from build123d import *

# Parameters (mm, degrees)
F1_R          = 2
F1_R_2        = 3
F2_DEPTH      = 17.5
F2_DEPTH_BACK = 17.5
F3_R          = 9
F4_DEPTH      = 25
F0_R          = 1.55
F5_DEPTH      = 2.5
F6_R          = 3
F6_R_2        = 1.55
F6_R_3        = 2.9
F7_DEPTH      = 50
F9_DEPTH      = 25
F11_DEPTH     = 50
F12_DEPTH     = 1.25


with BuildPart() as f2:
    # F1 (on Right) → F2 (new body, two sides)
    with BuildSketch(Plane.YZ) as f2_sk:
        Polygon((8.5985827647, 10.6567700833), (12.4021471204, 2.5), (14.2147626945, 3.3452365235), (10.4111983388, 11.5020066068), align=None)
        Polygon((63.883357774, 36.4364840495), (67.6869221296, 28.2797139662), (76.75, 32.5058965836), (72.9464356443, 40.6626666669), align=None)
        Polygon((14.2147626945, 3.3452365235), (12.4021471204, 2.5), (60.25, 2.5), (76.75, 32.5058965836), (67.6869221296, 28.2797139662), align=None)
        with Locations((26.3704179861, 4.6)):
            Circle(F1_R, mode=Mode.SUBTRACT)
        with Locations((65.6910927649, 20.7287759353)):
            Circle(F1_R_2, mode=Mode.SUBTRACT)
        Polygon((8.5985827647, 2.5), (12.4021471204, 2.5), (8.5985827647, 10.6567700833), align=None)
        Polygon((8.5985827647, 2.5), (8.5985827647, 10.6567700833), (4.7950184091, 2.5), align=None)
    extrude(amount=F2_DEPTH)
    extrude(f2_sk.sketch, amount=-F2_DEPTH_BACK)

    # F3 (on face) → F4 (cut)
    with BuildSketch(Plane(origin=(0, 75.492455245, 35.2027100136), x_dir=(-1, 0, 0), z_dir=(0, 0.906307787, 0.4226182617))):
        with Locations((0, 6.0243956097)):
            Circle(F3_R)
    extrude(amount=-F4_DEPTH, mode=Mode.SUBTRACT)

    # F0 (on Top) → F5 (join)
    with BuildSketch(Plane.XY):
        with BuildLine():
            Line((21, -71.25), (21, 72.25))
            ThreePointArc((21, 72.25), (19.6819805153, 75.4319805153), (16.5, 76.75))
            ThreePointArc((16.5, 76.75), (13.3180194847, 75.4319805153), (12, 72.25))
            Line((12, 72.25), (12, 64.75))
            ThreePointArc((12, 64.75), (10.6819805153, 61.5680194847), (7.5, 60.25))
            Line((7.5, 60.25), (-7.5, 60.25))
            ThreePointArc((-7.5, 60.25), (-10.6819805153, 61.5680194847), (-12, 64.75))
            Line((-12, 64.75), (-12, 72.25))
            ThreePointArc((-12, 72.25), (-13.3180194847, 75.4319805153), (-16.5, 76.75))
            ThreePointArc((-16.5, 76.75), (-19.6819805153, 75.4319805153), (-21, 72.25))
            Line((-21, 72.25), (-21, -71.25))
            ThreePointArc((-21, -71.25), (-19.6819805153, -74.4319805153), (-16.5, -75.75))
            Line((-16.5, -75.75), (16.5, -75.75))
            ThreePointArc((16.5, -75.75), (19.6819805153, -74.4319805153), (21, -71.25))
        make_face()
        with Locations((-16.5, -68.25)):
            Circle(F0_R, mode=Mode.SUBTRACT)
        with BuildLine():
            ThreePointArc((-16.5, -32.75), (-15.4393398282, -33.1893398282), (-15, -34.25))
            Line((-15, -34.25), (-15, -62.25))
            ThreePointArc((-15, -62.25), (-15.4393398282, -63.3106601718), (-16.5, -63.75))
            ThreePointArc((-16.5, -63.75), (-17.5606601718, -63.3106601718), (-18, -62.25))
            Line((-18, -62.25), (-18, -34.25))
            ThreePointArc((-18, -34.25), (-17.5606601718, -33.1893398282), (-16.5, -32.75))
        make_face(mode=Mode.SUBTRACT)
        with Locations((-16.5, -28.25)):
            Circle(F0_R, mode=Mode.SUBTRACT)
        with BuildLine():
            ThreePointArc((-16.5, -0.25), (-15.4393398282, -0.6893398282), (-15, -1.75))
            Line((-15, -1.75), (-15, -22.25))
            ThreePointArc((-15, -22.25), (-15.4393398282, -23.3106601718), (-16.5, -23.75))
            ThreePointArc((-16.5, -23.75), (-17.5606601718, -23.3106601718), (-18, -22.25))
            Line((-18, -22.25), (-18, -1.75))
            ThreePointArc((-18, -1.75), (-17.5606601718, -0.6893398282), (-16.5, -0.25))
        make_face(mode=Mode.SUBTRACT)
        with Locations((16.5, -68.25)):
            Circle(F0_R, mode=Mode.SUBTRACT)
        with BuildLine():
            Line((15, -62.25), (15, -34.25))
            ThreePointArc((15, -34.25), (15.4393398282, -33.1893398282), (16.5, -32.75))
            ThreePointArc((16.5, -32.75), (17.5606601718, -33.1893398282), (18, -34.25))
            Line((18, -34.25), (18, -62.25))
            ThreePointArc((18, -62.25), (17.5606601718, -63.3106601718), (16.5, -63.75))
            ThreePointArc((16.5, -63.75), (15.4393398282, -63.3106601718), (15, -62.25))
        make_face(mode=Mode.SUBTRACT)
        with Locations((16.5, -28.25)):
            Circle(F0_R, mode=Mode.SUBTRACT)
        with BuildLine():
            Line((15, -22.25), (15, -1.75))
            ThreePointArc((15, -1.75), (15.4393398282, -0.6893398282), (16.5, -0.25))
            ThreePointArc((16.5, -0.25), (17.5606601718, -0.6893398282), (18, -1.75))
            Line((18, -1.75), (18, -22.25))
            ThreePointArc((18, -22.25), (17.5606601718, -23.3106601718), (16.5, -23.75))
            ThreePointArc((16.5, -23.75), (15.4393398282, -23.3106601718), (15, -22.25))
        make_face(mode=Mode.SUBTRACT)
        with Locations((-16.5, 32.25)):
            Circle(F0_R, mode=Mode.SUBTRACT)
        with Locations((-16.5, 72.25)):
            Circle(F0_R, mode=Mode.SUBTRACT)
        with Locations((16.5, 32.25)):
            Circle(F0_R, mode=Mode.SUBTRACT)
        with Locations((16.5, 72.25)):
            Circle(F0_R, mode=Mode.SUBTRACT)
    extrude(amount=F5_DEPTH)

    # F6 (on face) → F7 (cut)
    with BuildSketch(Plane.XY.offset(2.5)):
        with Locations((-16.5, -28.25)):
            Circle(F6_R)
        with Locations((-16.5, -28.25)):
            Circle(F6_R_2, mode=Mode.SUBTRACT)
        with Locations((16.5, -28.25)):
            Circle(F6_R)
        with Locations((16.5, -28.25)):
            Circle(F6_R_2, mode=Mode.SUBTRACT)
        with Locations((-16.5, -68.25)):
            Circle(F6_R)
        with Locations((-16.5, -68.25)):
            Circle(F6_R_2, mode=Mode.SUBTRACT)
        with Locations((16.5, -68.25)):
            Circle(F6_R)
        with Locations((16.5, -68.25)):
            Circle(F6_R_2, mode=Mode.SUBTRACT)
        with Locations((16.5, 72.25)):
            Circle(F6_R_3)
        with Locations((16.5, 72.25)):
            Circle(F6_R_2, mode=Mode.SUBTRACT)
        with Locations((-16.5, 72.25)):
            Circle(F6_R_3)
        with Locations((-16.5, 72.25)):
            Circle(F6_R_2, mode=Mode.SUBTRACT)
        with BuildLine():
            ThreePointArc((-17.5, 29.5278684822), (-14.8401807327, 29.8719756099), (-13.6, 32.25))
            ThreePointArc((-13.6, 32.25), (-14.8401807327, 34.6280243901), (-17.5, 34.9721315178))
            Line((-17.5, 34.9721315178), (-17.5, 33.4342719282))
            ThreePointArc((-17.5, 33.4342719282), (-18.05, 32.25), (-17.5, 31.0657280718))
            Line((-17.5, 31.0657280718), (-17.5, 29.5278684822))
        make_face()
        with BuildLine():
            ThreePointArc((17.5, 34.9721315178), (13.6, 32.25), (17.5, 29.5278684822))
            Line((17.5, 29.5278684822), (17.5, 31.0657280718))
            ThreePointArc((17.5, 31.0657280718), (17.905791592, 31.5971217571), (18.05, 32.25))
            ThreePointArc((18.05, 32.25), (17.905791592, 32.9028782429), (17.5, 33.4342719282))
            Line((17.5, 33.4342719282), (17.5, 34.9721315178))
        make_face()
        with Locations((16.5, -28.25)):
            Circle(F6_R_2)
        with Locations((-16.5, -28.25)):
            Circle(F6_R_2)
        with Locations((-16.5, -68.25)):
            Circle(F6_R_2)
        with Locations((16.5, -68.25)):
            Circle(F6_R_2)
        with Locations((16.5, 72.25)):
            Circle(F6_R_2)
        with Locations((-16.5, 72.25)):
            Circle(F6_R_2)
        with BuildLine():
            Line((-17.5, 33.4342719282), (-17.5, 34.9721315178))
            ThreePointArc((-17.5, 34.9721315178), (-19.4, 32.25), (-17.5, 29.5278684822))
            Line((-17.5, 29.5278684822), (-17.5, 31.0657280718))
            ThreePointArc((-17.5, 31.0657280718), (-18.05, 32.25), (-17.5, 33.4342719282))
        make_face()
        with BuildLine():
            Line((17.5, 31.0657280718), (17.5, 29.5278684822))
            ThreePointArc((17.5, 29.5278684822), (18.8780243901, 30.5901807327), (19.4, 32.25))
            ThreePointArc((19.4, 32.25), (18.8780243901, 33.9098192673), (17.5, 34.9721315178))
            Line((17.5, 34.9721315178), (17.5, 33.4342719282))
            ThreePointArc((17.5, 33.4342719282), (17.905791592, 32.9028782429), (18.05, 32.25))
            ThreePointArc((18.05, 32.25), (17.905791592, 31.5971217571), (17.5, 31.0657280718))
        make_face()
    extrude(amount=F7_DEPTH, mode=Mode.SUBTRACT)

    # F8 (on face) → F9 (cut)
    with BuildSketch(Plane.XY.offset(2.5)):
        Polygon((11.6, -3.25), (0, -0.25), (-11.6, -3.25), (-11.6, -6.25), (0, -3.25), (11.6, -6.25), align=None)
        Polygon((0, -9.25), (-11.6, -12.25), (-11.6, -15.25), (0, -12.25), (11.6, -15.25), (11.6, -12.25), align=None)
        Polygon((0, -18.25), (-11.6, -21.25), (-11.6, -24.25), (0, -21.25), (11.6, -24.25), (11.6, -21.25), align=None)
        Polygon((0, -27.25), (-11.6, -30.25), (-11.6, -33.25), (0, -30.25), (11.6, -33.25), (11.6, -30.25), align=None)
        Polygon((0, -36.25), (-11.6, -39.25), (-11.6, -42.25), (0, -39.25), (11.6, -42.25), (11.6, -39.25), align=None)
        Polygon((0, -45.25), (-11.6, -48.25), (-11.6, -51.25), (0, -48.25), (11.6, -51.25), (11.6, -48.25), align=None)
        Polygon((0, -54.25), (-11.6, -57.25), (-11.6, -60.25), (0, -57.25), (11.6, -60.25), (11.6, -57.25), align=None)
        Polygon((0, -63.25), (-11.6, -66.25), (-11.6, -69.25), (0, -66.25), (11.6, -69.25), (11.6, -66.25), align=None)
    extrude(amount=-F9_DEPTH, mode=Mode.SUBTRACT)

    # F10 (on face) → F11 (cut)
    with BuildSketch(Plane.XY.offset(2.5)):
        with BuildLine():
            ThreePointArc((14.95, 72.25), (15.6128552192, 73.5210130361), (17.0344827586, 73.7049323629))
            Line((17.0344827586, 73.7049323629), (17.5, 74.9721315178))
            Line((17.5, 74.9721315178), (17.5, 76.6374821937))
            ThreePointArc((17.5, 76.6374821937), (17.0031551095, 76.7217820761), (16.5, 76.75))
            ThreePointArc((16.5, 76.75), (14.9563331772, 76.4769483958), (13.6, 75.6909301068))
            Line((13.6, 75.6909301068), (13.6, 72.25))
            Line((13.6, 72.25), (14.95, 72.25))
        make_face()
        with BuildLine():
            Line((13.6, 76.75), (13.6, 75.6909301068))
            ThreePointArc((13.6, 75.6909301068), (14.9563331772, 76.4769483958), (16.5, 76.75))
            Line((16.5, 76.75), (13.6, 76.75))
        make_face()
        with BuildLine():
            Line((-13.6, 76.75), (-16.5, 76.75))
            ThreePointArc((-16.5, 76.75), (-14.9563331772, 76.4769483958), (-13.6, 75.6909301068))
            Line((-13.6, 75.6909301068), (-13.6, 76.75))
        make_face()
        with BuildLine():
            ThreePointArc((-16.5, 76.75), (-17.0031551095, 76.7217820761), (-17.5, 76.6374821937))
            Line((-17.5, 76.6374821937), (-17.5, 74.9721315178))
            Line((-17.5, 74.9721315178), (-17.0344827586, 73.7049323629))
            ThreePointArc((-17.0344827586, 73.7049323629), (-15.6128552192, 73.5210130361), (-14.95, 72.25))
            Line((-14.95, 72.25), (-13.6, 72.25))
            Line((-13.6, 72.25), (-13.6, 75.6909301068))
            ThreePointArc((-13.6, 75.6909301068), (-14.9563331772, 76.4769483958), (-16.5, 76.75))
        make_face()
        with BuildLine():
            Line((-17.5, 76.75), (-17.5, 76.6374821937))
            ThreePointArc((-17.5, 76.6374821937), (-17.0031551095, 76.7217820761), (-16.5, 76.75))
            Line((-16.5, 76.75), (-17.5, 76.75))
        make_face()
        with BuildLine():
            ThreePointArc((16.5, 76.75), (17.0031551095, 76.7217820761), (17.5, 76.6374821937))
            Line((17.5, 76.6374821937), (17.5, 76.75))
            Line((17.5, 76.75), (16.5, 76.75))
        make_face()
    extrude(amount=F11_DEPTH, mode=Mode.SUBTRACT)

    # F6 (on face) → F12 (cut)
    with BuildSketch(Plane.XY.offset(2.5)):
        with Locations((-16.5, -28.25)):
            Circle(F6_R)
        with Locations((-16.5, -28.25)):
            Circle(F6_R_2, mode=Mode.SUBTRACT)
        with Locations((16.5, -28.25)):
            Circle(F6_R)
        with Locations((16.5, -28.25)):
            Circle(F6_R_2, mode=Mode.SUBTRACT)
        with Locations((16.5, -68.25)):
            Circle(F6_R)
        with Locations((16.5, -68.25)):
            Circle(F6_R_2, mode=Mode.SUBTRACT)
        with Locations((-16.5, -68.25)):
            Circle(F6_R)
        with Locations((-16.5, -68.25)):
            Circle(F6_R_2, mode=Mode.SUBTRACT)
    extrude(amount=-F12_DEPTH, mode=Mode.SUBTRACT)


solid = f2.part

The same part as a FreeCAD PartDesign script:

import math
import FreeCAD as App
import Part
import Sketcher
from FreeCAD import Vector
Q = App.Units.Quantity

doc = App.newDocument("Part")
body = doc.addObject("PartDesign::Body", "Body")

sketch1 = body.newObject("Sketcher::SketchObject", "Sketch")
sketch1.AttachmentSupport = (doc.getObject("YZ_Plane"), [""])
sketch1.MapMode = "FlatFace"
sketch1.addGeometry(Part.LineSegment(Vector(10.411198, 11.502007, 0), Vector(8.598583, 10.65677, 0)), False)
sketch1.addGeometry(Part.LineSegment(Vector(8.598583, 10.65677, 0), Vector(4.795018, 2.5, 0)), False)
sketch1.addGeometry(Part.LineSegment(Vector(4.795018, 2.5, 0), Vector(60.25, 2.5, 0)), False)
sketch1.addGeometry(Part.LineSegment(Vector(60.25, 2.5, 0), Vector(76.75, 32.505897, 0)), False)
sketch1.addGeometry(Part.LineSegment(Vector(76.75, 32.505897, 0), Vector(72.946436, 40.662667, 0)), False)
sketch1.addGeometry(Part.LineSegment(Vector(72.946436, 40.662667, 0), Vector(63.883358, 36.436484, 0)), False)
sketch1.addGeometry(Part.LineSegment(Vector(63.883358, 36.436484, 0), Vector(67.686922, 28.279714, 0)), False)
sketch1.addGeometry(Part.LineSegment(Vector(67.686922, 28.279714, 0), Vector(14.214763, 3.345237, 0)), False)
sketch1.addGeometry(Part.LineSegment(Vector(14.214763, 3.345237, 0), Vector(10.411198, 11.502007, 0)), False)
sketch1.addGeometry(Part.Circle(Vector(26.370418, 4.6, 0), Vector(0, 0, 1), 2), False)
sketch1.addGeometry(Part.Circle(Vector(65.691093, 20.728776, 0), Vector(0, 0, 1), 3), False)
sketch1.addConstraint(Sketcher.Constraint("Coincident", 0, 2, 1, 1))
sketch1.addConstraint(Sketcher.Constraint("Coincident", 1, 2, 2, 1))
sketch1.addConstraint(Sketcher.Constraint("Coincident", 2, 2, 3, 1))
sketch1.addConstraint(Sketcher.Constraint("Coincident", 3, 2, 4, 1))
sketch1.addConstraint(Sketcher.Constraint("Coincident", 4, 2, 5, 1))
sketch1.addConstraint(Sketcher.Constraint("Coincident", 5, 2, 6, 1))
sketch1.addConstraint(Sketcher.Constraint("Coincident", 6, 2, 7, 1))
sketch1.addConstraint(Sketcher.Constraint("Coincident", 7, 2, 8, 1))
sketch1.addConstraint(Sketcher.Constraint("Coincident", 8, 2, 0, 1))
sketch1.addConstraint(Sketcher.Constraint("Horizontal", 2))
sketch1.addConstraint(Sketcher.Constraint("Perpendicular", 0, 4))
sketch1.addConstraint(Sketcher.Constraint("Perpendicular", 4, 5))
sketch1.addConstraint(Sketcher.Constraint("Perpendicular", 5, 6))
sketch1.addConstraint(Sketcher.Constraint("Perpendicular", 6, 7))
sketch1.addConstraint(Sketcher.Constraint("Perpendicular", 7, 8))
sketch1.addConstraint(Sketcher.Constraint("Equal", 1, 4))
sketch1.addConstraint(Sketcher.Constraint("Equal", 4, 6))
sketch1.addConstraint(Sketcher.Constraint("Equal", 6, 8))
sketch1.addConstraint(Sketcher.Constraint("Diameter", 9, 4.0))
sketch1.addConstraint(Sketcher.Constraint("Diameter", 10, 6.0))
sketch1.addConstraint(Sketcher.Constraint("Angle", 0, Q("-155 deg")))
sketch1.addConstraint(Sketcher.Constraint("Angle", 1, Q("-115 deg")))
sketch1.addConstraint(Sketcher.Constraint("Distance", 0, 2.0))
sketch1.addConstraint(Sketcher.Constraint("Distance", 1, 9.0))
sketch1.addConstraint(Sketcher.Constraint("Distance", 5, 10.0))
sketch1.addConstraint(Sketcher.Constraint("Distance", 7, 59.0))
sketch1.addConstraint(Sketcher.Constraint("DistanceY", -1, 1, 9, 3, 4.6))
sketch1.addConstraint(Sketcher.Constraint("DistanceY", -1, 1, 1, 2, 2.5))
sketch1.addConstraint(Sketcher.Constraint("DistanceX", 2, 2, 3, 2, 16.5))
sketch1.addConstraint(Sketcher.Constraint("DistanceX", -1, 1, 2, 2, 60.25))
sketch1.addConstraint(Sketcher.Constraint("DistanceX", 1, 2, 9, 3, 21.5754))
sketch1.addConstraint(Sketcher.Constraint("DistanceX", 0, 2, 10, 3, 57.09251))
sketch1.addConstraint(Sketcher.Constraint("DistanceY", 10, 3, 3, 2, 11.777121))
pad1 = body.newObject("PartDesign::Pad", "Pad")
pad1.Profile = sketch1
pad1.Type = "TwoLengths"
pad1.Length = 17.5
pad1.Length2 = 17.5

sketch2 = body.newObject("Sketcher::SketchObject", "Sketch001")
sketch2.Placement = App.Placement(Vector(0, 75.492455, 35.20271), App.Rotation(Vector(-1, 0, 0), Vector(0, -0.422618262, 0.906307787), Vector(0, 0.906307787, 0.422618262), "ZXY"))
sketch2.addGeometry(Part.Circle(Vector(0, 6.024396, 0), Vector(0, 0, 1), 9), False)
sketch2.addConstraint(Sketcher.Constraint("PointOnObject", 0, 3, -2))
sketch2.addConstraint(Sketcher.Constraint("Diameter", 0, 18.0))
sketch2.addConstraint(Sketcher.Constraint("DistanceY", -1, 1, 0, 3, 6.024396))
pocket1 = body.newObject("PartDesign::Pocket", "Pocket")
pocket1.Profile = sketch2
pocket1.Length = 25

sketch3 = body.newObject("Sketcher::SketchObject", "Sketch002")
sketch3.AttachmentSupport = (doc.getObject("XY_Plane"), [""])
sketch3.MapMode = "FlatFace"
sketch3.addGeometry(Part.LineSegment(Vector(21, -71.25, 0), Vector(21, 72.25, 0)), False)
sketch3.addGeometry(Part.ArcOfCircle(Part.Circle(Vector(16.5, 72.25, 0), Vector(0, 0, 1), 4.5), math.radians(0), math.radians(90)), False)
sketch3.addGeometry(Part.ArcOfCircle(Part.Circle(Vector(16.5, 72.25, 0), Vector(0, 0, 1), 4.5), math.radians(90), math.radians(180)), False)
sketch3.addGeometry(Part.LineSegment(Vector(12, 72.25, 0), Vector(12, 64.75, 0)), False)
sketch3.addGeometry(Part.ArcOfCircle(Part.Circle(Vector(7.5, 64.75, 0), Vector(0, 0, 1), 4.5), math.radians(-90), math.radians(0)), False)
sketch3.addGeometry(Part.LineSegment(Vector(7.5, 60.25, 0), Vector(-7.5, 60.25, 0)), False)
sketch3.addGeometry(Part.ArcOfCircle(Part.Circle(Vector(-7.5, 64.75, 0), Vector(0, 0, 1), 4.5), math.radians(180), math.radians(270)), False)
sketch3.addGeometry(Part.LineSegment(Vector(-12, 64.75, 0), Vector(-12, 72.25, 0)), False)
sketch3.addGeometry(Part.ArcOfCircle(Part.Circle(Vector(-16.5, 72.25, 0), Vector(0, 0, 1), 4.5), math.radians(0), math.radians(90)), False)
sketch3.addGeometry(Part.ArcOfCircle(Part.Circle(Vector(-16.5, 72.25, 0), Vector(0, 0, 1), 4.5), math.radians(90), math.radians(180)), False)
sketch3.addGeometry(Part.LineSegment(Vector(-21, 72.25, 0), Vector(-21, -71.25, 0)), False)
sketch3.addGeometry(Part.ArcOfCircle(Part.Circle(Vector(-16.5, -71.25, 0), Vector(0, 0, 1), 4.5), math.radians(180), math.radians(270)), False)
sketch3.addGeometry(Part.LineSegment(Vector(-16.5, -75.75, 0), Vector(16.5, -75.75, 0)), False)
sketch3.addGeometry(Part.ArcOfCircle(Part.Circle(Vector(16.5, -71.25, 0), Vector(0, 0, 1), 4.5), math.radians(-90), math.radians(0)), False)
sketch3.addGeometry(Part.Circle(Vector(-16.5, -68.25, 0), Vector(0, 0, 1), 1.55), False)
sketch3.addGeometry(Part.ArcOfCircle(Part.Circle(Vector(-16.5, -34.25, 0), Vector(0, 0, 1), 1.5), math.radians(90), math.radians(180)), False)
sketch3.addGeometry(Part.ArcOfCircle(Part.Circle(Vector(-16.5, -34.25, 0), Vector(0, 0, 1), 1.5), math.radians(0), math.radians(90)), False)
sketch3.addGeometry(Part.LineSegment(Vector(-15, -34.25, 0), Vector(-15, -62.25, 0)), False)
sketch3.addGeometry(Part.ArcOfCircle(Part.Circle(Vector(-16.5, -62.25, 0), Vector(0, 0, 1), 1.5), math.radians(-90), math.radians(0)), False)
sketch3.addGeometry(Part.ArcOfCircle(Part.Circle(Vector(-16.5, -62.25, 0), Vector(0, 0, 1), 1.5), math.radians(180), math.radians(270)), False)
sketch3.addGeometry(Part.LineSegment(Vector(-18, -62.25, 0), Vector(-18, -34.25, 0)), False)
sketch3.addGeometry(Part.Circle(Vector(-16.5, -28.25, 0), Vector(0, 0, 1), 1.55), False)
sketch3.addGeometry(Part.ArcOfCircle(Part.Circle(Vector(-16.5, -1.75, 0), Vector(0, 0, 1), 1.5), math.radians(90), math.radians(180)), False)
sketch3.addGeometry(Part.ArcOfCircle(Part.Circle(Vector(-16.5, -1.75, 0), Vector(0, 0, 1), 1.5), math.radians(0), math.radians(90)), False)
sketch3.addGeometry(Part.LineSegment(Vector(-15, -1.75, 0), Vector(-15, -22.25, 0)), False)
sketch3.addGeometry(Part.ArcOfCircle(Part.Circle(Vector(-16.5, -22.25, 0), Vector(0, 0, 1), 1.5), math.radians(-90), math.radians(0)), False)
sketch3.addGeometry(Part.ArcOfCircle(Part.Circle(Vector(-16.5, -22.25, 0), Vector(0, 0, 1), 1.5), math.radians(180), math.radians(270)), False)
sketch3.addGeometry(Part.LineSegment(Vector(-18, -22.25, 0), Vector(-18, -1.75, 0)), False)
sketch3.addGeometry(Part.Circle(Vector(16.5, -68.25, 0), Vector(0, 0, 1), 1.55), False)
sketch3.addGeometry(Part.ArcOfCircle(Part.Circle(Vector(16.5, -62.25, 0), Vector(0, 0, 1), 1.5), math.radians(180), math.radians(270)), False)
sketch3.addGeometry(Part.LineSegment(Vector(15, -62.25, 0), Vector(15, -34.25, 0)), False)
sketch3.addGeometry(Part.ArcOfCircle(Part.Circle(Vector(16.5, -34.25, 0), Vector(0, 0, 1), 1.5), math.radians(90), math.radians(180)), False)
sketch3.addGeometry(Part.ArcOfCircle(Part.Circle(Vector(16.5, -34.25, 0), Vector(0, 0, 1), 1.5), math.radians(0), math.radians(90)), False)
sketch3.addGeometry(Part.LineSegment(Vector(18, -34.25, 0), Vector(18, -62.25, 0)), False)
sketch3.addGeometry(Part.ArcOfCircle(Part.Circle(Vector(16.5, -62.25, 0), Vector(0, 0, 1), 1.5), math.radians(-90), math.radians(0)), False)
sketch3.addGeometry(Part.Circle(Vector(16.5, -28.25, 0), Vector(0, 0, 1), 1.55), False)
sketch3.addGeometry(Part.ArcOfCircle(Part.Circle(Vector(16.5, -22.25, 0), Vector(0, 0, 1), 1.5), math.radians(180), math.radians(270)), False)
sketch3.addGeometry(Part.LineSegment(Vector(15, -22.25, 0), Vector(15, -1.75, 0)), False)
sketch3.addGeometry(Part.ArcOfCircle(Part.Circle(Vector(16.5, -1.75, 0), Vector(0, 0, 1), 1.5), math.radians(90), math.radians(180)), False)
sketch3.addGeometry(Part.ArcOfCircle(Part.Circle(Vector(16.5, -1.75, 0), Vector(0, 0, 1), 1.5), math.radians(0), math.radians(90)), False)
sketch3.addGeometry(Part.LineSegment(Vector(18, -1.75, 0), Vector(18, -22.25, 0)), False)
sketch3.addGeometry(Part.ArcOfCircle(Part.Circle(Vector(16.5, -22.25, 0), Vector(0, 0, 1), 1.5), math.radians(-90), math.radians(0)), False)
sketch3.addGeometry(Part.Circle(Vector(-16.5, 32.25, 0), Vector(0, 0, 1), 1.55), False)
sketch3.addGeometry(Part.Circle(Vector(-16.5, 72.25, 0), Vector(0, 0, 1), 1.55), False)
sketch3.addGeometry(Part.Circle(Vector(16.5, 32.25, 0), Vector(0, 0, 1), 1.55), False)
sketch3.addGeometry(Part.Circle(Vector(16.5, 72.25, 0), Vector(0, 0, 1), 1.55), False)
sketch3.addConstraint(Sketcher.Constraint("Tangent", 0, 2, 1, 1))
sketch3.addConstraint(Sketcher.Constraint("Tangent", 1, 2, 2, 1))
sketch3.addConstraint(Sketcher.Constraint("Tangent", 2, 2, 3, 1))
sketch3.addConstraint(Sketcher.Constraint("Tangent", 3, 2, 4, 2))
sketch3.addConstraint(Sketcher.Constraint("Tangent", 4, 1, 5, 1))
sketch3.addConstraint(Sketcher.Constraint("Tangent", 5, 2, 6, 2))
sketch3.addConstraint(Sketcher.Constraint("Tangent", 6, 1, 7, 1))
sketch3.addConstraint(Sketcher.Constraint("Tangent", 7, 2, 8, 1))
sketch3.addConstraint(Sketcher.Constraint("Tangent", 8, 2, 9, 1))
sketch3.addConstraint(Sketcher.Constraint("Tangent", 9, 2, 10, 1))
sketch3.addConstraint(Sketcher.Constraint("Tangent", 10, 2, 11, 1))
sketch3.addConstraint(Sketcher.Constraint("Tangent", 11, 2, 12, 1))
sketch3.addConstraint(Sketcher.Constraint("Tangent", 12, 2, 13, 1))
sketch3.addConstraint(Sketcher.Constraint("Tangent", 13, 2, 0, 1))
sketch3.addConstraint(Sketcher.Constraint("Tangent", 15, 1, 16, 2))
sketch3.addConstraint(Sketcher.Constraint("Tangent", 16, 1, 17, 1))
sketch3.addConstraint(Sketcher.Constraint("Tangent", 17, 2, 18, 2))
sketch3.addConstraint(Sketcher.Constraint("Tangent", 18, 1, 19, 2))
sketch3.addConstraint(Sketcher.Constraint("Tangent", 19, 1, 20, 1))
sketch3.addConstraint(Sketcher.Constraint("Tangent", 20, 2, 15, 2))
sketch3.addConstraint(Sketcher.Constraint("Tangent", 22, 1, 23, 2))
sketch3.addConstraint(Sketcher.Constraint("Tangent", 23, 1, 24, 1))
sketch3.addConstraint(Sketcher.Constraint("Tangent", 24, 2, 25, 2))
sketch3.addConstraint(Sketcher.Constraint("Tangent", 25, 1, 26, 2))
sketch3.addConstraint(Sketcher.Constraint("Tangent", 26, 1, 27, 1))
sketch3.addConstraint(Sketcher.Constraint("Tangent", 27, 2, 22, 2))
sketch3.addConstraint(Sketcher.Constraint("Tangent", 29, 1, 30, 1))
sketch3.addConstraint(Sketcher.Constraint("Tangent", 30, 2, 31, 2))
sketch3.addConstraint(Sketcher.Constraint("Tangent", 31, 1, 32, 2))
sketch3.addConstraint(Sketcher.Constraint("Tangent", 32, 1, 33, 1))
sketch3.addConstraint(Sketcher.Constraint("Tangent", 33, 2, 34, 2))
sketch3.addConstraint(Sketcher.Constraint("Tangent", 34, 1, 29, 2))
sketch3.addConstraint(Sketcher.Constraint("Tangent", 36, 1, 37, 1))
sketch3.addConstraint(Sketcher.Constraint("Tangent", 37, 2, 38, 2))
sketch3.addConstraint(Sketcher.Constraint("Tangent", 38, 1, 39, 2))
sketch3.addConstraint(Sketcher.Constraint("Tangent", 39, 1, 40, 1))
sketch3.addConstraint(Sketcher.Constraint("Tangent", 40, 2, 41, 2))
sketch3.addConstraint(Sketcher.Constraint("Tangent", 41, 1, 36, 2))
sketch3.addConstraint(Sketcher.Constraint("Vertical", 0))
sketch3.addConstraint(Sketcher.Constraint("Vertical", 3))
sketch3.addConstraint(Sketcher.Constraint("Horizontal", 5))
sketch3.addConstraint(Sketcher.Constraint("Vertical", 7))
sketch3.addConstraint(Sketcher.Constraint("Vertical", 10))
sketch3.addConstraint(Sketcher.Constraint("Horizontal", 12))
sketch3.addConstraint(Sketcher.Constraint("Vertical", 17))
sketch3.addConstraint(Sketcher.Constraint("Vertical", 20))
sketch3.addConstraint(Sketcher.Constraint("Vertical", 24))
sketch3.addConstraint(Sketcher.Constraint("Vertical", 27))
sketch3.addConstraint(Sketcher.Constraint("Vertical", 30))
sketch3.addConstraint(Sketcher.Constraint("Vertical", 33))
sketch3.addConstraint(Sketcher.Constraint("Vertical", 37))
sketch3.addConstraint(Sketcher.Constraint("Vertical", 40))
sketch3.addConstraint(Sketcher.Constraint("Coincident", 43, 3, 8, 3))
sketch3.addConstraint(Sketcher.Constraint("Coincident", 45, 3, 1, 3))
sketch3.addConstraint(Sketcher.Constraint("Equal", 1, 2))
sketch3.addConstraint(Sketcher.Constraint("Equal", 2, 4))
sketch3.addConstraint(Sketcher.Constraint("Equal", 4, 6))
sketch3.addConstraint(Sketcher.Constraint("Equal", 6, 8))
sketch3.addConstraint(Sketcher.Constraint("Equal", 8, 9))
sketch3.addConstraint(Sketcher.Constraint("Equal", 9, 11))
sketch3.addConstraint(Sketcher.Constraint("Equal", 11, 13))
sketch3.addConstraint(Sketcher.Constraint("Equal", 15, 16))
sketch3.addConstraint(Sketcher.Constraint("Equal", 16, 18))
sketch3.addConstraint(Sketcher.Constraint("Equal", 14, 21))
sketch3.addConstraint(Sketcher.Constraint("Equal", 19, 22))
sketch3.addConstraint(Sketcher.Constraint("Equal", 22, 23))
sketch3.addConstraint(Sketcher.Constraint("Equal", 23, 25))
sketch3.addConstraint(Sketcher.Constraint("Equal", 21, 28))
sketch3.addConstraint(Sketcher.Constraint("Equal", 26, 29))
sketch3.addConstraint(Sketcher.Constraint("Equal", 29, 31))
sketch3.addConstraint(Sketcher.Constraint("Equal", 31, 32))
sketch3.addConstraint(Sketcher.Constraint("Equal", 28, 35))
sketch3.addConstraint(Sketcher.Constraint("Equal", 34, 36))
sketch3.addConstraint(Sketcher.Constraint("Equal", 36, 38))
sketch3.addConstraint(Sketcher.Constraint("Equal", 38, 39))
sketch3.addConstraint(Sketcher.Constraint("Equal", 35, 42))
sketch3.addConstraint(Sketcher.Constraint("Equal", 42, 43))
sketch3.addConstraint(Sketcher.Constraint("Equal", 43, 44))
sketch3.addConstraint(Sketcher.Constraint("Equal", 44, 45))
sketch3.addConstraint(Sketcher.Constraint("Symmetric", 1, 3, 8, 3, -2))
sketch3.addConstraint(Sketcher.Constraint("Symmetric", 14, 3, 28, 3, -2))
sketch3.addConstraint(Sketcher.Constraint("Symmetric", 18, 3, 29, 3, -2))
sketch3.addConstraint(Sketcher.Constraint("Symmetric", 21, 3, 35, 3, -2))
sketch3.addConstraint(Sketcher.Constraint("Symmetric", 25, 3, 36, 3, -2))
sketch3.addConstraint(Sketcher.Constraint("Symmetric", 42, 3, 44, 3, -2))
sketch3.addConstraint(Sketcher.Constraint("Symmetric", 15, 1, 31, 1, -2))
sketch3.addConstraint(Sketcher.Constraint("Symmetric", 22, 1, 38, 1, -2))
sketch3.addConstraint(Sketcher.Constraint("Vertical", 11, 3, 14, 3))
sketch3.addConstraint(Sketcher.Constraint("Vertical", 14, 3, 15, 3))
sketch3.addConstraint(Sketcher.Constraint("Vertical", 19, 3, 21, 3))
sketch3.addConstraint(Sketcher.Constraint("Vertical", 21, 3, 22, 3))
sketch3.addConstraint(Sketcher.Constraint("Vertical", 26, 3, 42, 3))
sketch3.addConstraint(Sketcher.Constraint("Vertical", 45, 3, 1, 2))
sketch3.addConstraint(Sketcher.Constraint("Vertical", 43, 3, 8, 2))
sketch3.addConstraint(Sketcher.Constraint("Vertical", 11, 2, 15, 1))
sketch3.addConstraint(Sketcher.Constraint("Vertical", 15, 1, 18, 1))
sketch3.addConstraint(Sketcher.Constraint("Vertical", 18, 1, 22, 1))
sketch3.addConstraint(Sketcher.Constraint("Vertical", 22, 1, 25, 1))
sketch3.addConstraint(Sketcher.Constraint("Vertical", 31, 1, 34, 1))
sketch3.addConstraint(Sketcher.Constraint("Vertical", 38, 1, 41, 1))
sketch3.addConstraint(Sketcher.Constraint("Diameter", 14, 3.1))
sketch3.addConstraint(Sketcher.Constraint("Radius", 1, 4.5))
sketch3.addConstraint(Sketcher.Constraint("Radius", 15, 1.5))
sketch3.addConstraint(Sketcher.Constraint("DistanceX", 5, 2, 5, 1, 15.0))
sketch3.addConstraint(Sketcher.Constraint("DistanceY", 17, 2, 17, 1, 28.0))
sketch3.addConstraint(Sketcher.Constraint("DistanceY", 0, 1, 0, 2, 143.5))
sketch3.addConstraint(Sketcher.Constraint("DistanceY", 3, 2, 3, 1, 7.5))
sketch3.addConstraint(Sketcher.Constraint("DistanceY", 24, 2, 24, 1, 20.5))
sketch3.addConstraint(Sketcher.Constraint("DistanceY", -1, 1, 1, 3, 72.25))
sketch3.addConstraint(Sketcher.Constraint("DistanceY", 14, 3, -1, 1, 68.25))
sketch3.addConstraint(Sketcher.Constraint("DistanceY", 15, 3, -1, 1, 34.25))
sketch3.addConstraint(Sketcher.Constraint("DistanceY", 21, 3, -1, 1, 28.25))
sketch3.addConstraint(Sketcher.Constraint("DistanceY", 22, 3, -1, 1, 1.75))
sketch3.addConstraint(Sketcher.Constraint("DistanceY", -1, 1, 42, 3, 32.25))
pad2 = body.newObject("PartDesign::Pad", "Pad001")
pad2.Profile = sketch3
pad2.Length = 2.5

sketch4 = body.newObject("Sketcher::SketchObject", "Sketch003")
sketch4.AttachmentSupport = (doc.getObject("XY_Plane"), [""])
sketch4.MapMode = "FlatFace"
sketch4.AttachmentOffset = App.Placement(Vector(0, 0, 2.5), App.Rotation())
sketch4.addGeometry(Part.Circle(Vector(-16.5, -28.25, 0), Vector(0, 0, 1), 3), False)
sketch4.addGeometry(Part.Circle(Vector(16.5, -28.25, 0), Vector(0, 0, 1), 3), False)
sketch4.addGeometry(Part.Circle(Vector(-16.5, -68.25, 0), Vector(0, 0, 1), 3), False)
sketch4.addGeometry(Part.Circle(Vector(16.5, -68.25, 0), Vector(0, 0, 1), 3), False)
sketch4.addGeometry(Part.Circle(Vector(16.5, 72.25, 0), Vector(0, 0, 1), 2.9), False)
sketch4.addGeometry(Part.Circle(Vector(-16.5, 72.25, 0), Vector(0, 0, 1), 2.9), False)
sketch4.addGeometry(Part.ArcOfCircle(Part.Circle(Vector(-16.5, 32.25, 0), Vector(0, 0, 1), 2.9), math.radians(-110.171271), math.radians(0)), False)
sketch4.addGeometry(Part.ArcOfCircle(Part.Circle(Vector(-16.5, 32.25, 0), Vector(0, 0, 1), 2.9), math.radians(0), math.radians(110.171271)), False)
sketch4.addGeometry(Part.ArcOfCircle(Part.Circle(Vector(-16.5, 32.25, 0), Vector(0, 0, 1), 2.9), math.radians(110.171271), math.radians(249.828729)), False)
sketch4.addGeometry(Part.ArcOfCircle(Part.Circle(Vector(16.5, 32.25, 0), Vector(0, 0, 1), 2.9), math.radians(69.828729), math.radians(290.171271)), False)
sketch4.addGeometry(Part.ArcOfCircle(Part.Circle(Vector(16.5, 32.25, 0), Vector(0, 0, 1), 2.9), math.radians(-69.828729), math.radians(0)), False)
sketch4.addGeometry(Part.ArcOfCircle(Part.Circle(Vector(16.5, 32.25, 0), Vector(0, 0, 1), 2.9), math.radians(0), math.radians(69.828729)), False)
sketch4.addConstraint(Sketcher.Constraint("Tangent", 6, 2, 7, 1))
sketch4.addConstraint(Sketcher.Constraint("Tangent", 7, 2, 8, 1))
sketch4.addConstraint(Sketcher.Constraint("Tangent", 8, 2, 6, 1))
sketch4.addConstraint(Sketcher.Constraint("Tangent", 9, 2, 10, 1))
sketch4.addConstraint(Sketcher.Constraint("Tangent", 10, 2, 11, 1))
sketch4.addConstraint(Sketcher.Constraint("Tangent", 11, 2, 9, 1))
sketch4.addConstraint(Sketcher.Constraint("Equal", 0, 1))
sketch4.addConstraint(Sketcher.Constraint("Equal", 1, 2))
sketch4.addConstraint(Sketcher.Constraint("Equal", 2, 3))
sketch4.addConstraint(Sketcher.Constraint("Equal", 4, 5))
sketch4.addConstraint(Sketcher.Constraint("Equal", 5, 6))
sketch4.addConstraint(Sketcher.Constraint("Equal", 8, 9))
sketch4.addConstraint(Sketcher.Constraint("Symmetric", 0, 3, 1, 3, -2))
sketch4.addConstraint(Sketcher.Constraint("Symmetric", 2, 3, 3, 3, -2))
sketch4.addConstraint(Sketcher.Constraint("Symmetric", 4, 3, 5, 3, -2))
sketch4.addConstraint(Sketcher.Constraint("Symmetric", 6, 3, 9, 3, -2))
sketch4.addConstraint(Sketcher.Constraint("Horizontal", 11, 3, 6, 2))
sketch4.addConstraint(Sketcher.Constraint("Horizontal", 8, 2, 9, 2))
sketch4.addConstraint(Sketcher.Constraint("Horizontal", 6, 2, 10, 2))
sketch4.addConstraint(Sketcher.Constraint("Horizontal", 7, 2, 11, 2))
sketch4.addConstraint(Sketcher.Constraint("Vertical", 0, 3, 2, 3))
sketch4.addConstraint(Sketcher.Constraint("Vertical", 3, 3, 4, 3))
sketch4.addConstraint(Sketcher.Constraint("Vertical", 5, 3, 6, 3))
sketch4.addConstraint(Sketcher.Constraint("Vertical", 7, 2, 8, 2))
sketch4.addConstraint(Sketcher.Constraint("Diameter", 0, 6.0))
sketch4.addConstraint(Sketcher.Constraint("Diameter", 4, 5.8))
sketch4.addConstraint(Sketcher.Constraint("DistanceX", 0, 3, 1, 3, 33.0))
sketch4.addConstraint(Sketcher.Constraint("DistanceY", 2, 3, 0, 3, 40.0))
sketch4.addConstraint(Sketcher.Constraint("DistanceY", 6, 3, 5, 3, 40.0))
sketch4.addConstraint(Sketcher.Constraint("DistanceX", 7, 2, 6, 3, 1.0))
sketch4.addConstraint(Sketcher.Constraint("DistanceY", 1, 3, 4, 3, 100.5))
sketch4.addConstraint(Sketcher.Constraint("DistanceY", 0, 3, -1, 1, 28.25))
pocket2 = body.newObject("PartDesign::Pocket", "Pocket001")
pocket2.Profile = sketch4
pocket2.Length = 50
pocket2.Reversed = True

sketch5 = body.newObject("Sketcher::SketchObject", "Sketch004")
sketch5.AttachmentSupport = (doc.getObject("XY_Plane"), [""])
sketch5.MapMode = "FlatFace"
sketch5.AttachmentOffset = App.Placement(Vector(0, 0, 2.5), App.Rotation())
sketch5.addGeometry(Part.LineSegment(Vector(11.6, -3.25, 0), Vector(0, -0.25, 0)), False)
sketch5.addGeometry(Part.LineSegment(Vector(0, -0.25, 0), Vector(-11.6, -3.25, 0)), False)
sketch5.addGeometry(Part.LineSegment(Vector(-11.6, -3.25, 0), Vector(-11.6, -6.25, 0)), False)
sketch5.addGeometry(Part.LineSegment(Vector(-11.6, -6.25, 0), Vector(0, -3.25, 0)), False)
sketch5.addGeometry(Part.LineSegment(Vector(0, -3.25, 0), Vector(11.6, -6.25, 0)), False)
sketch5.addGeometry(Part.LineSegment(Vector(11.6, -6.25, 0), Vector(11.6, -3.25, 0)), False)
sketch5.addGeometry(Part.LineSegment(Vector(0, -9.25, 0), Vector(-11.6, -12.25, 0)), False)
sketch5.addGeometry(Part.LineSegment(Vector(-11.6, -12.25, 0), Vector(-11.6, -15.25, 0)), False)
sketch5.addGeometry(Part.LineSegment(Vector(-11.6, -15.25, 0), Vector(0, -12.25, 0)), False)
sketch5.addGeometry(Part.LineSegment(Vector(0, -12.25, 0), Vector(11.6, -15.25, 0)), False)
sketch5.addGeometry(Part.LineSegment(Vector(11.6, -15.25, 0), Vector(11.6, -12.25, 0)), False)
sketch5.addGeometry(Part.LineSegment(Vector(11.6, -12.25, 0), Vector(0, -9.25, 0)), False)
sketch5.addGeometry(Part.LineSegment(Vector(0, -18.25, 0), Vector(-11.6, -21.25, 0)), False)
sketch5.addGeometry(Part.LineSegment(Vector(-11.6, -21.25, 0), Vector(-11.6, -24.25, 0)), False)
sketch5.addGeometry(Part.LineSegment(Vector(-11.6, -24.25, 0), Vector(0, -21.25, 0)), False)
sketch5.addGeometry(Part.LineSegment(Vector(0, -21.25, 0), Vector(11.6, -24.25, 0)), False)
sketch5.addGeometry(Part.LineSegment(Vector(11.6, -24.25, 0), Vector(11.6, -21.25, 0)), False)
sketch5.addGeometry(Part.LineSegment(Vector(11.6, -21.25, 0), Vector(0, -18.25, 0)), False)
sketch5.addGeometry(Part.LineSegment(Vector(0, -27.25, 0), Vector(-11.6, -30.25, 0)), False)
sketch5.addGeometry(Part.LineSegment(Vector(-11.6, -30.25, 0), Vector(-11.6, -33.25, 0)), False)
sketch5.addGeometry(Part.LineSegment(Vector(-11.6, -33.25, 0), Vector(0, -30.25, 0)), False)
sketch5.addGeometry(Part.LineSegment(Vector(0, -30.25, 0), Vector(11.6, -33.25, 0)), False)
sketch5.addGeometry(Part.LineSegment(Vector(11.6, -33.25, 0), Vector(11.6, -30.25, 0)), False)
sketch5.addGeometry(Part.LineSegment(Vector(11.6, -30.25, 0), Vector(0, -27.25, 0)), False)
sketch5.addGeometry(Part.LineSegment(Vector(0, -36.25, 0), Vector(-11.6, -39.25, 0)), False)
sketch5.addGeometry(Part.LineSegment(Vector(-11.6, -39.25, 0), Vector(-11.6, -42.25, 0)), False)
sketch5.addGeometry(Part.LineSegment(Vector(-11.6, -42.25, 0), Vector(0, -39.25, 0)), False)
sketch5.addGeometry(Part.LineSegment(Vector(0, -39.25, 0), Vector(11.6, -42.25, 0)), False)
sketch5.addGeometry(Part.LineSegment(Vector(11.6, -42.25, 0), Vector(11.6, -39.25, 0)), False)
sketch5.addGeometry(Part.LineSegment(Vector(11.6, -39.25, 0), Vector(0, -36.25, 0)), False)
sketch5.addGeometry(Part.LineSegment(Vector(0, -45.25, 0), Vector(-11.6, -48.25, 0)), False)
sketch5.addGeometry(Part.LineSegment(Vector(-11.6, -48.25, 0), Vector(-11.6, -51.25, 0)), False)
sketch5.addGeometry(Part.LineSegment(Vector(-11.6, -51.25, 0), Vector(0, -48.25, 0)), False)
sketch5.addGeometry(Part.LineSegment(Vector(0, -48.25, 0), Vector(11.6, -51.25, 0)), False)
sketch5.addGeometry(Part.LineSegment(Vector(11.6, -51.25, 0), Vector(11.6, -48.25, 0)), False)
sketch5.addGeometry(Part.LineSegment(Vector(11.6, -48.25, 0), Vector(0, -45.25, 0)), False)
sketch5.addGeometry(Part.LineSegment(Vector(0, -54.25, 0), Vector(-11.6, -57.25, 0)), False)
sketch5.addGeometry(Part.LineSegment(Vector(-11.6, -57.25, 0), Vector(-11.6, -60.25, 0)), False)
sketch5.addGeometry(Part.LineSegment(Vector(-11.6, -60.25, 0), Vector(0, -57.25, 0)), False)
sketch5.addGeometry(Part.LineSegment(Vector(0, -57.25, 0), Vector(11.6, -60.25, 0)), False)
sketch5.addGeometry(Part.LineSegment(Vector(11.6, -60.25, 0), Vector(11.6, -57.25, 0)), False)
sketch5.addGeometry(Part.LineSegment(Vector(11.6, -57.25, 0), Vector(0, -54.25, 0)), False)
sketch5.addGeometry(Part.LineSegment(Vector(0, -63.25, 0), Vector(-11.6, -66.25, 0)), False)
sketch5.addGeometry(Part.LineSegment(Vector(-11.6, -66.25, 0), Vector(-11.6, -69.25, 0)), False)
sketch5.addGeometry(Part.LineSegment(Vector(-11.6, -69.25, 0), Vector(0, -66.25, 0)), False)
sketch5.addGeometry(Part.LineSegment(Vector(0, -66.25, 0), Vector(11.6, -69.25, 0)), False)
sketch5.addGeometry(Part.LineSegment(Vector(11.6, -69.25, 0), Vector(11.6, -66.25, 0)), False)
sketch5.addGeometry(Part.LineSegment(Vector(11.6, -66.25, 0), Vector(0, -63.25, 0)), False)
sketch5.addConstraint(Sketcher.Constraint("Coincident", 0, 2, 1, 1))
sketch5.addConstraint(Sketcher.Constraint("Coincident", 1, 2, 2, 1))
sketch5.addConstraint(Sketcher.Constraint("Coincident", 2, 2, 3, 1))
sketch5.addConstraint(Sketcher.Constraint("Coincident", 3, 2, 4, 1))
sketch5.addConstraint(Sketcher.Constraint("Coincident", 4, 2, 5, 1))
sketch5.addConstraint(Sketcher.Constraint("Coincident", 5, 2, 0, 1))
sketch5.addConstraint(Sketcher.Constraint("Coincident", 6, 2, 7, 1))
sketch5.addConstraint(Sketcher.Constraint("Coincident", 7, 2, 8, 1))
sketch5.addConstraint(Sketcher.Constraint("Coincident", 8, 2, 9, 1))
sketch5.addConstraint(Sketcher.Constraint("Coincident", 9, 2, 10, 1))
sketch5.addConstraint(Sketcher.Constraint("Coincident", 10, 2, 11, 1))
sketch5.addConstraint(Sketcher.Constraint("Coincident", 11, 2, 6, 1))
sketch5.addConstraint(Sketcher.Constraint("Coincident", 12, 2, 13, 1))
sketch5.addConstraint(Sketcher.Constraint("Coincident", 13, 2, 14, 1))
sketch5.addConstraint(Sketcher.Constraint("Coincident", 14, 2, 15, 1))
sketch5.addConstraint(Sketcher.Constraint("Coincident", 15, 2, 16, 1))
sketch5.addConstraint(Sketcher.Constraint("Coincident", 16, 2, 17, 1))
sketch5.addConstraint(Sketcher.Constraint("Coincident", 17, 2, 12, 1))
sketch5.addConstraint(Sketcher.Constraint("Coincident", 18, 2, 19, 1))
sketch5.addConstraint(Sketcher.Constraint("Coincident", 19, 2, 20, 1))
sketch5.addConstraint(Sketcher.Constraint("Coincident", 20, 2, 21, 1))
sketch5.addConstraint(Sketcher.Constraint("Coincident", 21, 2, 22, 1))
sketch5.addConstraint(Sketcher.Constraint("Coincident", 22, 2, 23, 1))
sketch5.addConstraint(Sketcher.Constraint("Coincident", 23, 2, 18, 1))
sketch5.addConstraint(Sketcher.Constraint("Coincident", 24, 2, 25, 1))
sketch5.addConstraint(Sketcher.Constraint("Coincident", 25, 2, 26, 1))
sketch5.addConstraint(Sketcher.Constraint("Coincident", 26, 2, 27, 1))
sketch5.addConstraint(Sketcher.Constraint("Coincident", 27, 2, 28, 1))
sketch5.addConstraint(Sketcher.Constraint("Coincident", 28, 2, 29, 1))
sketch5.addConstraint(Sketcher.Constraint("Coincident", 29, 2, 24, 1))
sketch5.addConstraint(Sketcher.Constraint("Coincident", 30, 2, 31, 1))
sketch5.addConstraint(Sketcher.Constraint("Coincident", 31, 2, 32, 1))
sketch5.addConstraint(Sketcher.Constraint("Coincident", 32, 2, 33, 1))
sketch5.addConstraint(Sketcher.Constraint("Coincident", 33, 2, 34, 1))
sketch5.addConstraint(Sketcher.Constraint("Coincident", 34, 2, 35, 1))
sketch5.addConstraint(Sketcher.Constraint("Coincident", 35, 2, 30, 1))
sketch5.addConstraint(Sketcher.Constraint("Coincident", 36, 2, 37, 1))
sketch5.addConstraint(Sketcher.Constraint("Coincident", 37, 2, 38, 1))
sketch5.addConstraint(Sketcher.Constraint("Coincident", 38, 2, 39, 1))
sketch5.addConstraint(Sketcher.Constraint("Coincident", 39, 2, 40, 1))
sketch5.addConstraint(Sketcher.Constraint("Coincident", 40, 2, 41, 1))
sketch5.addConstraint(Sketcher.Constraint("Coincident", 41, 2, 36, 1))
sketch5.addConstraint(Sketcher.Constraint("Coincident", 42, 2, 43, 1))
sketch5.addConstraint(Sketcher.Constraint("Coincident", 43, 2, 44, 1))
sketch5.addConstraint(Sketcher.Constraint("Coincident", 44, 2, 45, 1))
sketch5.addConstraint(Sketcher.Constraint("Coincident", 45, 2, 46, 1))
sketch5.addConstraint(Sketcher.Constraint("Coincident", 46, 2, 47, 1))
sketch5.addConstraint(Sketcher.Constraint("Coincident", 47, 2, 42, 1))
sketch5.addConstraint(Sketcher.Constraint("Vertical", 2))
sketch5.addConstraint(Sketcher.Constraint("Vertical", 5))
sketch5.addConstraint(Sketcher.Constraint("Vertical", 7))
sketch5.addConstraint(Sketcher.Constraint("Vertical", 10))
sketch5.addConstraint(Sketcher.Constraint("Vertical", 13))
sketch5.addConstraint(Sketcher.Constraint("Vertical", 16))
sketch5.addConstraint(Sketcher.Constraint("Vertical", 19))
sketch5.addConstraint(Sketcher.Constraint("Vertical", 22))
sketch5.addConstraint(Sketcher.Constraint("Vertical", 25))
sketch5.addConstraint(Sketcher.Constraint("Vertical", 28))
sketch5.addConstraint(Sketcher.Constraint("Vertical", 31))
sketch5.addConstraint(Sketcher.Constraint("Vertical", 34))
sketch5.addConstraint(Sketcher.Constraint("Vertical", 37))
sketch5.addConstraint(Sketcher.Constraint("Vertical", 40))
sketch5.addConstraint(Sketcher.Constraint("Vertical", 43))
sketch5.addConstraint(Sketcher.Constraint("Vertical", 46))
sketch5.addConstraint(Sketcher.Constraint("Symmetric", 2, 2, 4, 2, -2))
sketch5.addConstraint(Sketcher.Constraint("Symmetric", 7, 2, 9, 2, -2))
sketch5.addConstraint(Sketcher.Constraint("Symmetric", 13, 2, 15, 2, -2))
sketch5.addConstraint(Sketcher.Constraint("Symmetric", 19, 2, 21, 2, -2))
sketch5.addConstraint(Sketcher.Constraint("Symmetric", 25, 2, 27, 2, -2))
sketch5.addConstraint(Sketcher.Constraint("Symmetric", 31, 2, 33, 2, -2))
sketch5.addConstraint(Sketcher.Constraint("Symmetric", 37, 2, 39, 2, -2))
sketch5.addConstraint(Sketcher.Constraint("Symmetric", 43, 2, 45, 2, -2))
sketch5.addConstraint(Sketcher.Constraint("PointOnObject", 0, 2, -2))
sketch5.addConstraint(Sketcher.Constraint("PointOnObject", 3, 2, -2))
sketch5.addConstraint(Sketcher.Constraint("PointOnObject", 8, 2, -2))
sketch5.addConstraint(Sketcher.Constraint("PointOnObject", 11, 2, -2))
sketch5.addConstraint(Sketcher.Constraint("PointOnObject", 14, 2, -2))
sketch5.addConstraint(Sketcher.Constraint("PointOnObject", 17, 2, -2))
sketch5.addConstraint(Sketcher.Constraint("PointOnObject", 20, 2, -2))
sketch5.addConstraint(Sketcher.Constraint("PointOnObject", 23, 2, -2))
sketch5.addConstraint(Sketcher.Constraint("PointOnObject", 26, 2, -2))
sketch5.addConstraint(Sketcher.Constraint("PointOnObject", 29, 2, -2))
sketch5.addConstraint(Sketcher.Constraint("PointOnObject", 32, 2, -2))
sketch5.addConstraint(Sketcher.Constraint("PointOnObject", 35, 2, -2))
sketch5.addConstraint(Sketcher.Constraint("PointOnObject", 38, 2, -2))
sketch5.addConstraint(Sketcher.Constraint("PointOnObject", 41, 2, -2))
sketch5.addConstraint(Sketcher.Constraint("PointOnObject", 44, 2, -2))
sketch5.addConstraint(Sketcher.Constraint("PointOnObject", 47, 2, -2))
sketch5.addConstraint(Sketcher.Constraint("Parallel", 1, 3))
sketch5.addConstraint(Sketcher.Constraint("Parallel", 0, 4))
sketch5.addConstraint(Sketcher.Constraint("Parallel", 3, 6))
sketch5.addConstraint(Sketcher.Constraint("Parallel", 6, 8))
sketch5.addConstraint(Sketcher.Constraint("Parallel", 9, 11))
sketch5.addConstraint(Sketcher.Constraint("Parallel", 8, 12))
sketch5.addConstraint(Sketcher.Constraint("Parallel", 12, 14))
sketch5.addConstraint(Sketcher.Constraint("Parallel", 15, 17))
sketch5.addConstraint(Sketcher.Constraint("Parallel", 14, 18))
sketch5.addConstraint(Sketcher.Constraint("Parallel", 18, 20))
sketch5.addConstraint(Sketcher.Constraint("Parallel", 21, 23))
sketch5.addConstraint(Sketcher.Constraint("Parallel", 20, 24))
sketch5.addConstraint(Sketcher.Constraint("Parallel", 24, 26))
sketch5.addConstraint(Sketcher.Constraint("Parallel", 27, 29))
sketch5.addConstraint(Sketcher.Constraint("Parallel", 26, 30))
sketch5.addConstraint(Sketcher.Constraint("Parallel", 30, 32))
sketch5.addConstraint(Sketcher.Constraint("Parallel", 33, 35))
sketch5.addConstraint(Sketcher.Constraint("Parallel", 32, 36))
sketch5.addConstraint(Sketcher.Constraint("Parallel", 36, 38))
sketch5.addConstraint(Sketcher.Constraint("Parallel", 39, 41))
sketch5.addConstraint(Sketcher.Constraint("Parallel", 38, 42))
sketch5.addConstraint(Sketcher.Constraint("Parallel", 42, 44))
sketch5.addConstraint(Sketcher.Constraint("Parallel", 45, 47))
sketch5.addConstraint(Sketcher.Constraint("Horizontal", 1, 2, 3, 2))
sketch5.addConstraint(Sketcher.Constraint("Horizontal", 6, 2, 8, 2))
sketch5.addConstraint(Sketcher.Constraint("Horizontal", 12, 2, 14, 2))
sketch5.addConstraint(Sketcher.Constraint("Horizontal", 18, 2, 20, 2))
sketch5.addConstraint(Sketcher.Constraint("Horizontal", 24, 2, 26, 2))
sketch5.addConstraint(Sketcher.Constraint("Horizontal", 30, 2, 32, 2))
sketch5.addConstraint(Sketcher.Constraint("Horizontal", 36, 2, 38, 2))
sketch5.addConstraint(Sketcher.Constraint("Horizontal", 42, 2, 44, 2))
sketch5.addConstraint(Sketcher.Constraint("Vertical", 2, 2, 6, 2))
sketch5.addConstraint(Sketcher.Constraint("Vertical", 7, 2, 12, 2))
sketch5.addConstraint(Sketcher.Constraint("Vertical", 13, 2, 18, 2))
sketch5.addConstraint(Sketcher.Constraint("Vertical", 19, 2, 24, 2))
sketch5.addConstraint(Sketcher.Constraint("Vertical", 25, 2, 30, 2))
sketch5.addConstraint(Sketcher.Constraint("Vertical", 31, 2, 36, 2))
sketch5.addConstraint(Sketcher.Constraint("Vertical", 37, 2, 42, 2))
sketch5.addConstraint(Sketcher.Constraint("DistanceY", 2, 2, 2, 1, 3.0))
sketch5.addConstraint(Sketcher.Constraint("DistanceY", 6, 2, 2, 2, 6.0))
sketch5.addConstraint(Sketcher.Constraint("DistanceY", 12, 2, 7, 2, 6.0))
sketch5.addConstraint(Sketcher.Constraint("DistanceY", 18, 2, 13, 2, 6.0))
sketch5.addConstraint(Sketcher.Constraint("DistanceY", 24, 2, 19, 2, 6.0))
sketch5.addConstraint(Sketcher.Constraint("DistanceY", 30, 2, 25, 2, 6.0))
sketch5.addConstraint(Sketcher.Constraint("DistanceY", 36, 2, 31, 2, 6.0))
sketch5.addConstraint(Sketcher.Constraint("DistanceY", 42, 2, 37, 2, 6.0))
sketch5.addConstraint(Sketcher.Constraint("DistanceX", 1, 2, -1, 1, 11.6))
sketch5.addConstraint(Sketcher.Constraint("DistanceY", 0, 2, -1, 1, 0.25))
pocket3 = body.newObject("PartDesign::Pocket", "Pocket002")
pocket3.Profile = sketch5
pocket3.Length = 25

sketch6 = body.newObject("Sketcher::SketchObject", "Sketch005")
sketch6.AttachmentSupport = (doc.getObject("XY_Plane"), [""])
sketch6.MapMode = "FlatFace"
sketch6.AttachmentOffset = App.Placement(Vector(0, 0, 2.5), App.Rotation())
sketch6.addGeometry(Part.ArcOfCircle(Part.Circle(Vector(16.5, 72.25, 0), Vector(0, 0, 1), 1.55), math.radians(69.828729), math.radians(180)), False)
sketch6.addGeometry(Part.LineSegment(Vector(17.034483, 73.704932, 0), Vector(17.5, 74.972132, 0)), False)
sketch6.addGeometry(Part.LineSegment(Vector(17.5, 74.972132, 0), Vector(17.5, 76.75, 0)), False)
sketch6.addGeometry(Part.LineSegment(Vector(17.5, 76.75, 0), Vector(13.6, 76.75, 0)), False)
sketch6.addGeometry(Part.LineSegment(Vector(13.6, 76.75, 0), Vector(13.6, 72.25, 0)), False)
sketch6.addGeometry(Part.LineSegment(Vector(13.6, 72.25, 0), Vector(14.95, 72.25, 0)), False)
sketch6.addGeometry(Part.LineSegment(Vector(-13.6, 76.75, 0), Vector(-17.5, 76.75, 0)), False)
sketch6.addGeometry(Part.LineSegment(Vector(-17.5, 76.75, 0), Vector(-17.5, 74.972132, 0)), False)
sketch6.addGeometry(Part.LineSegment(Vector(-17.5, 74.972132, 0), Vector(-17.034483, 73.704932, 0)), False)
sketch6.addGeometry(Part.ArcOfCircle(Part.Circle(Vector(-16.5, 72.25, 0), Vector(0, 0, 1), 1.55), math.radians(0), math.radians(110.171271)), False)
sketch6.addGeometry(Part.LineSegment(Vector(-14.95, 72.25, 0), Vector(-13.6, 72.25, 0)), False)
sketch6.addGeometry(Part.LineSegment(Vector(-13.6, 72.25, 0), Vector(-13.6, 76.75, 0)), False)
sketch6.addConstraint(Sketcher.Constraint("Coincident", 0, 1, 1, 1))
sketch6.addConstraint(Sketcher.Constraint("Coincident", 1, 2, 2, 1))
sketch6.addConstraint(Sketcher.Constraint("Coincident", 2, 2, 3, 1))
sketch6.addConstraint(Sketcher.Constraint("Coincident", 3, 2, 4, 1))
sketch6.addConstraint(Sketcher.Constraint("Coincident", 4, 2, 5, 1))
sketch6.addConstraint(Sketcher.Constraint("Coincident", 5, 2, 0, 2))
sketch6.addConstraint(Sketcher.Constraint("Coincident", 6, 2, 7, 1))
sketch6.addConstraint(Sketcher.Constraint("Coincident", 7, 2, 8, 1))
sketch6.addConstraint(Sketcher.Constraint("Coincident", 8, 2, 9, 2))
sketch6.addConstraint(Sketcher.Constraint("Coincident", 9, 1, 10, 1))
sketch6.addConstraint(Sketcher.Constraint("Coincident", 10, 2, 11, 1))
sketch6.addConstraint(Sketcher.Constraint("Coincident", 11, 2, 6, 1))
sketch6.addConstraint(Sketcher.Constraint("Vertical", 2))
sketch6.addConstraint(Sketcher.Constraint("Horizontal", 3))
sketch6.addConstraint(Sketcher.Constraint("Vertical", 4))
sketch6.addConstraint(Sketcher.Constraint("Horizontal", 5))
sketch6.addConstraint(Sketcher.Constraint("Horizontal", 6))
sketch6.addConstraint(Sketcher.Constraint("Vertical", 7))
sketch6.addConstraint(Sketcher.Constraint("Horizontal", 10))
sketch6.addConstraint(Sketcher.Constraint("Vertical", 11))
sketch6.addConstraint(Sketcher.Constraint("Equal", 0, 9))
sketch6.addConstraint(Sketcher.Constraint("Symmetric", 0, 3, 9, 3, -2))
sketch6.addConstraint(Sketcher.Constraint("Symmetric", 2, 2, 6, 2, -2))
sketch6.addConstraint(Sketcher.Constraint("Symmetric", 4, 2, 10, 2, -2))
sketch6.addConstraint(Sketcher.Constraint("Horizontal", 9, 3, 4, 2))
sketch6.addConstraint(Sketcher.Constraint("Horizontal", 1, 2, 7, 2))
sketch6.addConstraint(Sketcher.Constraint("Horizontal", 0, 1, 8, 2))
sketch6.addConstraint(Sketcher.Constraint("Radius", 0, 1.55))
sketch6.addConstraint(Sketcher.Constraint("DistanceX", 3, 2, 3, 1, 3.9))
sketch6.addConstraint(Sketcher.Constraint("DistanceY", 4, 2, 4, 1, 4.5))
sketch6.addConstraint(Sketcher.Constraint("DistanceX", 9, 3, 0, 3, 33.0))
sketch6.addConstraint(Sketcher.Constraint("DistanceX", 0, 3, 1, 2, 1.0))
sketch6.addConstraint(Sketcher.Constraint("Distance", 1, 1.35))
sketch6.addConstraint(Sketcher.Constraint("DistanceY", -1, 1, 0, 3, 72.25))
sketch6.addConstraint(Sketcher.Constraint("DistanceY", 0, 1, 1, 2, 1.267199))
pocket4 = body.newObject("PartDesign::Pocket", "Pocket003")
pocket4.Profile = sketch6
pocket4.Length = 50
pocket4.Reversed = True

sketch7 = body.newObject("Sketcher::SketchObject", "Sketch006")
sketch7.AttachmentSupport = (doc.getObject("XY_Plane"), [""])
sketch7.MapMode = "FlatFace"
sketch7.AttachmentOffset = App.Placement(Vector(0, 0, 2.5), App.Rotation())
sketch7.addGeometry(Part.Circle(Vector(-16.5, -28.25, 0), Vector(0, 0, 1), 3), False)
sketch7.addGeometry(Part.Circle(Vector(-16.5, -28.25, 0), Vector(0, 0, 1), 1.55), False)
sketch7.addGeometry(Part.Circle(Vector(16.5, -28.25, 0), Vector(0, 0, 1), 3), False)
sketch7.addGeometry(Part.Circle(Vector(16.5, -28.25, 0), Vector(0, 0, 1), 1.55), False)
sketch7.addGeometry(Part.Circle(Vector(16.5, -68.25, 0), Vector(0, 0, 1), 3), False)
sketch7.addGeometry(Part.Circle(Vector(16.5, -68.25, 0), Vector(0, 0, 1), 1.55), False)
sketch7.addGeometry(Part.Circle(Vector(-16.5, -68.25, 0), Vector(0, 0, 1), 3), False)
sketch7.addGeometry(Part.Circle(Vector(-16.5, -68.25, 0), Vector(0, 0, 1), 1.55), False)
sketch7.addConstraint(Sketcher.Constraint("Coincident", 1, 3, 0, 3))
sketch7.addConstraint(Sketcher.Constraint("Coincident", 3, 3, 2, 3))
sketch7.addConstraint(Sketcher.Constraint("Coincident", 5, 3, 4, 3))
sketch7.addConstraint(Sketcher.Constraint("Coincident", 7, 3, 6, 3))
sketch7.addConstraint(Sketcher.Constraint("Equal", 0, 2))
sketch7.addConstraint(Sketcher.Constraint("Equal", 1, 3))
sketch7.addConstraint(Sketcher.Constraint("Equal", 2, 4))
sketch7.addConstraint(Sketcher.Constraint("Equal", 3, 5))
sketch7.addConstraint(Sketcher.Constraint("Equal", 4, 6))
sketch7.addConstraint(Sketcher.Constraint("Equal", 5, 7))
sketch7.addConstraint(Sketcher.Constraint("Symmetric", 0, 3, 2, 3, -2))
sketch7.addConstraint(Sketcher.Constraint("Symmetric", 4, 3, 6, 3, -2))
sketch7.addConstraint(Sketcher.Constraint("Vertical", 3, 3, 4, 3))
sketch7.addConstraint(Sketcher.Constraint("Diameter", 0, 6.0))
sketch7.addConstraint(Sketcher.Constraint("Diameter", 1, 3.1))
sketch7.addConstraint(Sketcher.Constraint("DistanceX", 0, 3, 2, 3, 33.0))
sketch7.addConstraint(Sketcher.Constraint("DistanceY", 4, 3, 2, 3, 40.0))
sketch7.addConstraint(Sketcher.Constraint("DistanceY", 0, 3, -1, 1, 28.25))
pocket5 = body.newObject("PartDesign::Pocket", "Pocket004")
pocket5.Profile = sketch7
pocket5.Length = 1.25

doc.recompute()
